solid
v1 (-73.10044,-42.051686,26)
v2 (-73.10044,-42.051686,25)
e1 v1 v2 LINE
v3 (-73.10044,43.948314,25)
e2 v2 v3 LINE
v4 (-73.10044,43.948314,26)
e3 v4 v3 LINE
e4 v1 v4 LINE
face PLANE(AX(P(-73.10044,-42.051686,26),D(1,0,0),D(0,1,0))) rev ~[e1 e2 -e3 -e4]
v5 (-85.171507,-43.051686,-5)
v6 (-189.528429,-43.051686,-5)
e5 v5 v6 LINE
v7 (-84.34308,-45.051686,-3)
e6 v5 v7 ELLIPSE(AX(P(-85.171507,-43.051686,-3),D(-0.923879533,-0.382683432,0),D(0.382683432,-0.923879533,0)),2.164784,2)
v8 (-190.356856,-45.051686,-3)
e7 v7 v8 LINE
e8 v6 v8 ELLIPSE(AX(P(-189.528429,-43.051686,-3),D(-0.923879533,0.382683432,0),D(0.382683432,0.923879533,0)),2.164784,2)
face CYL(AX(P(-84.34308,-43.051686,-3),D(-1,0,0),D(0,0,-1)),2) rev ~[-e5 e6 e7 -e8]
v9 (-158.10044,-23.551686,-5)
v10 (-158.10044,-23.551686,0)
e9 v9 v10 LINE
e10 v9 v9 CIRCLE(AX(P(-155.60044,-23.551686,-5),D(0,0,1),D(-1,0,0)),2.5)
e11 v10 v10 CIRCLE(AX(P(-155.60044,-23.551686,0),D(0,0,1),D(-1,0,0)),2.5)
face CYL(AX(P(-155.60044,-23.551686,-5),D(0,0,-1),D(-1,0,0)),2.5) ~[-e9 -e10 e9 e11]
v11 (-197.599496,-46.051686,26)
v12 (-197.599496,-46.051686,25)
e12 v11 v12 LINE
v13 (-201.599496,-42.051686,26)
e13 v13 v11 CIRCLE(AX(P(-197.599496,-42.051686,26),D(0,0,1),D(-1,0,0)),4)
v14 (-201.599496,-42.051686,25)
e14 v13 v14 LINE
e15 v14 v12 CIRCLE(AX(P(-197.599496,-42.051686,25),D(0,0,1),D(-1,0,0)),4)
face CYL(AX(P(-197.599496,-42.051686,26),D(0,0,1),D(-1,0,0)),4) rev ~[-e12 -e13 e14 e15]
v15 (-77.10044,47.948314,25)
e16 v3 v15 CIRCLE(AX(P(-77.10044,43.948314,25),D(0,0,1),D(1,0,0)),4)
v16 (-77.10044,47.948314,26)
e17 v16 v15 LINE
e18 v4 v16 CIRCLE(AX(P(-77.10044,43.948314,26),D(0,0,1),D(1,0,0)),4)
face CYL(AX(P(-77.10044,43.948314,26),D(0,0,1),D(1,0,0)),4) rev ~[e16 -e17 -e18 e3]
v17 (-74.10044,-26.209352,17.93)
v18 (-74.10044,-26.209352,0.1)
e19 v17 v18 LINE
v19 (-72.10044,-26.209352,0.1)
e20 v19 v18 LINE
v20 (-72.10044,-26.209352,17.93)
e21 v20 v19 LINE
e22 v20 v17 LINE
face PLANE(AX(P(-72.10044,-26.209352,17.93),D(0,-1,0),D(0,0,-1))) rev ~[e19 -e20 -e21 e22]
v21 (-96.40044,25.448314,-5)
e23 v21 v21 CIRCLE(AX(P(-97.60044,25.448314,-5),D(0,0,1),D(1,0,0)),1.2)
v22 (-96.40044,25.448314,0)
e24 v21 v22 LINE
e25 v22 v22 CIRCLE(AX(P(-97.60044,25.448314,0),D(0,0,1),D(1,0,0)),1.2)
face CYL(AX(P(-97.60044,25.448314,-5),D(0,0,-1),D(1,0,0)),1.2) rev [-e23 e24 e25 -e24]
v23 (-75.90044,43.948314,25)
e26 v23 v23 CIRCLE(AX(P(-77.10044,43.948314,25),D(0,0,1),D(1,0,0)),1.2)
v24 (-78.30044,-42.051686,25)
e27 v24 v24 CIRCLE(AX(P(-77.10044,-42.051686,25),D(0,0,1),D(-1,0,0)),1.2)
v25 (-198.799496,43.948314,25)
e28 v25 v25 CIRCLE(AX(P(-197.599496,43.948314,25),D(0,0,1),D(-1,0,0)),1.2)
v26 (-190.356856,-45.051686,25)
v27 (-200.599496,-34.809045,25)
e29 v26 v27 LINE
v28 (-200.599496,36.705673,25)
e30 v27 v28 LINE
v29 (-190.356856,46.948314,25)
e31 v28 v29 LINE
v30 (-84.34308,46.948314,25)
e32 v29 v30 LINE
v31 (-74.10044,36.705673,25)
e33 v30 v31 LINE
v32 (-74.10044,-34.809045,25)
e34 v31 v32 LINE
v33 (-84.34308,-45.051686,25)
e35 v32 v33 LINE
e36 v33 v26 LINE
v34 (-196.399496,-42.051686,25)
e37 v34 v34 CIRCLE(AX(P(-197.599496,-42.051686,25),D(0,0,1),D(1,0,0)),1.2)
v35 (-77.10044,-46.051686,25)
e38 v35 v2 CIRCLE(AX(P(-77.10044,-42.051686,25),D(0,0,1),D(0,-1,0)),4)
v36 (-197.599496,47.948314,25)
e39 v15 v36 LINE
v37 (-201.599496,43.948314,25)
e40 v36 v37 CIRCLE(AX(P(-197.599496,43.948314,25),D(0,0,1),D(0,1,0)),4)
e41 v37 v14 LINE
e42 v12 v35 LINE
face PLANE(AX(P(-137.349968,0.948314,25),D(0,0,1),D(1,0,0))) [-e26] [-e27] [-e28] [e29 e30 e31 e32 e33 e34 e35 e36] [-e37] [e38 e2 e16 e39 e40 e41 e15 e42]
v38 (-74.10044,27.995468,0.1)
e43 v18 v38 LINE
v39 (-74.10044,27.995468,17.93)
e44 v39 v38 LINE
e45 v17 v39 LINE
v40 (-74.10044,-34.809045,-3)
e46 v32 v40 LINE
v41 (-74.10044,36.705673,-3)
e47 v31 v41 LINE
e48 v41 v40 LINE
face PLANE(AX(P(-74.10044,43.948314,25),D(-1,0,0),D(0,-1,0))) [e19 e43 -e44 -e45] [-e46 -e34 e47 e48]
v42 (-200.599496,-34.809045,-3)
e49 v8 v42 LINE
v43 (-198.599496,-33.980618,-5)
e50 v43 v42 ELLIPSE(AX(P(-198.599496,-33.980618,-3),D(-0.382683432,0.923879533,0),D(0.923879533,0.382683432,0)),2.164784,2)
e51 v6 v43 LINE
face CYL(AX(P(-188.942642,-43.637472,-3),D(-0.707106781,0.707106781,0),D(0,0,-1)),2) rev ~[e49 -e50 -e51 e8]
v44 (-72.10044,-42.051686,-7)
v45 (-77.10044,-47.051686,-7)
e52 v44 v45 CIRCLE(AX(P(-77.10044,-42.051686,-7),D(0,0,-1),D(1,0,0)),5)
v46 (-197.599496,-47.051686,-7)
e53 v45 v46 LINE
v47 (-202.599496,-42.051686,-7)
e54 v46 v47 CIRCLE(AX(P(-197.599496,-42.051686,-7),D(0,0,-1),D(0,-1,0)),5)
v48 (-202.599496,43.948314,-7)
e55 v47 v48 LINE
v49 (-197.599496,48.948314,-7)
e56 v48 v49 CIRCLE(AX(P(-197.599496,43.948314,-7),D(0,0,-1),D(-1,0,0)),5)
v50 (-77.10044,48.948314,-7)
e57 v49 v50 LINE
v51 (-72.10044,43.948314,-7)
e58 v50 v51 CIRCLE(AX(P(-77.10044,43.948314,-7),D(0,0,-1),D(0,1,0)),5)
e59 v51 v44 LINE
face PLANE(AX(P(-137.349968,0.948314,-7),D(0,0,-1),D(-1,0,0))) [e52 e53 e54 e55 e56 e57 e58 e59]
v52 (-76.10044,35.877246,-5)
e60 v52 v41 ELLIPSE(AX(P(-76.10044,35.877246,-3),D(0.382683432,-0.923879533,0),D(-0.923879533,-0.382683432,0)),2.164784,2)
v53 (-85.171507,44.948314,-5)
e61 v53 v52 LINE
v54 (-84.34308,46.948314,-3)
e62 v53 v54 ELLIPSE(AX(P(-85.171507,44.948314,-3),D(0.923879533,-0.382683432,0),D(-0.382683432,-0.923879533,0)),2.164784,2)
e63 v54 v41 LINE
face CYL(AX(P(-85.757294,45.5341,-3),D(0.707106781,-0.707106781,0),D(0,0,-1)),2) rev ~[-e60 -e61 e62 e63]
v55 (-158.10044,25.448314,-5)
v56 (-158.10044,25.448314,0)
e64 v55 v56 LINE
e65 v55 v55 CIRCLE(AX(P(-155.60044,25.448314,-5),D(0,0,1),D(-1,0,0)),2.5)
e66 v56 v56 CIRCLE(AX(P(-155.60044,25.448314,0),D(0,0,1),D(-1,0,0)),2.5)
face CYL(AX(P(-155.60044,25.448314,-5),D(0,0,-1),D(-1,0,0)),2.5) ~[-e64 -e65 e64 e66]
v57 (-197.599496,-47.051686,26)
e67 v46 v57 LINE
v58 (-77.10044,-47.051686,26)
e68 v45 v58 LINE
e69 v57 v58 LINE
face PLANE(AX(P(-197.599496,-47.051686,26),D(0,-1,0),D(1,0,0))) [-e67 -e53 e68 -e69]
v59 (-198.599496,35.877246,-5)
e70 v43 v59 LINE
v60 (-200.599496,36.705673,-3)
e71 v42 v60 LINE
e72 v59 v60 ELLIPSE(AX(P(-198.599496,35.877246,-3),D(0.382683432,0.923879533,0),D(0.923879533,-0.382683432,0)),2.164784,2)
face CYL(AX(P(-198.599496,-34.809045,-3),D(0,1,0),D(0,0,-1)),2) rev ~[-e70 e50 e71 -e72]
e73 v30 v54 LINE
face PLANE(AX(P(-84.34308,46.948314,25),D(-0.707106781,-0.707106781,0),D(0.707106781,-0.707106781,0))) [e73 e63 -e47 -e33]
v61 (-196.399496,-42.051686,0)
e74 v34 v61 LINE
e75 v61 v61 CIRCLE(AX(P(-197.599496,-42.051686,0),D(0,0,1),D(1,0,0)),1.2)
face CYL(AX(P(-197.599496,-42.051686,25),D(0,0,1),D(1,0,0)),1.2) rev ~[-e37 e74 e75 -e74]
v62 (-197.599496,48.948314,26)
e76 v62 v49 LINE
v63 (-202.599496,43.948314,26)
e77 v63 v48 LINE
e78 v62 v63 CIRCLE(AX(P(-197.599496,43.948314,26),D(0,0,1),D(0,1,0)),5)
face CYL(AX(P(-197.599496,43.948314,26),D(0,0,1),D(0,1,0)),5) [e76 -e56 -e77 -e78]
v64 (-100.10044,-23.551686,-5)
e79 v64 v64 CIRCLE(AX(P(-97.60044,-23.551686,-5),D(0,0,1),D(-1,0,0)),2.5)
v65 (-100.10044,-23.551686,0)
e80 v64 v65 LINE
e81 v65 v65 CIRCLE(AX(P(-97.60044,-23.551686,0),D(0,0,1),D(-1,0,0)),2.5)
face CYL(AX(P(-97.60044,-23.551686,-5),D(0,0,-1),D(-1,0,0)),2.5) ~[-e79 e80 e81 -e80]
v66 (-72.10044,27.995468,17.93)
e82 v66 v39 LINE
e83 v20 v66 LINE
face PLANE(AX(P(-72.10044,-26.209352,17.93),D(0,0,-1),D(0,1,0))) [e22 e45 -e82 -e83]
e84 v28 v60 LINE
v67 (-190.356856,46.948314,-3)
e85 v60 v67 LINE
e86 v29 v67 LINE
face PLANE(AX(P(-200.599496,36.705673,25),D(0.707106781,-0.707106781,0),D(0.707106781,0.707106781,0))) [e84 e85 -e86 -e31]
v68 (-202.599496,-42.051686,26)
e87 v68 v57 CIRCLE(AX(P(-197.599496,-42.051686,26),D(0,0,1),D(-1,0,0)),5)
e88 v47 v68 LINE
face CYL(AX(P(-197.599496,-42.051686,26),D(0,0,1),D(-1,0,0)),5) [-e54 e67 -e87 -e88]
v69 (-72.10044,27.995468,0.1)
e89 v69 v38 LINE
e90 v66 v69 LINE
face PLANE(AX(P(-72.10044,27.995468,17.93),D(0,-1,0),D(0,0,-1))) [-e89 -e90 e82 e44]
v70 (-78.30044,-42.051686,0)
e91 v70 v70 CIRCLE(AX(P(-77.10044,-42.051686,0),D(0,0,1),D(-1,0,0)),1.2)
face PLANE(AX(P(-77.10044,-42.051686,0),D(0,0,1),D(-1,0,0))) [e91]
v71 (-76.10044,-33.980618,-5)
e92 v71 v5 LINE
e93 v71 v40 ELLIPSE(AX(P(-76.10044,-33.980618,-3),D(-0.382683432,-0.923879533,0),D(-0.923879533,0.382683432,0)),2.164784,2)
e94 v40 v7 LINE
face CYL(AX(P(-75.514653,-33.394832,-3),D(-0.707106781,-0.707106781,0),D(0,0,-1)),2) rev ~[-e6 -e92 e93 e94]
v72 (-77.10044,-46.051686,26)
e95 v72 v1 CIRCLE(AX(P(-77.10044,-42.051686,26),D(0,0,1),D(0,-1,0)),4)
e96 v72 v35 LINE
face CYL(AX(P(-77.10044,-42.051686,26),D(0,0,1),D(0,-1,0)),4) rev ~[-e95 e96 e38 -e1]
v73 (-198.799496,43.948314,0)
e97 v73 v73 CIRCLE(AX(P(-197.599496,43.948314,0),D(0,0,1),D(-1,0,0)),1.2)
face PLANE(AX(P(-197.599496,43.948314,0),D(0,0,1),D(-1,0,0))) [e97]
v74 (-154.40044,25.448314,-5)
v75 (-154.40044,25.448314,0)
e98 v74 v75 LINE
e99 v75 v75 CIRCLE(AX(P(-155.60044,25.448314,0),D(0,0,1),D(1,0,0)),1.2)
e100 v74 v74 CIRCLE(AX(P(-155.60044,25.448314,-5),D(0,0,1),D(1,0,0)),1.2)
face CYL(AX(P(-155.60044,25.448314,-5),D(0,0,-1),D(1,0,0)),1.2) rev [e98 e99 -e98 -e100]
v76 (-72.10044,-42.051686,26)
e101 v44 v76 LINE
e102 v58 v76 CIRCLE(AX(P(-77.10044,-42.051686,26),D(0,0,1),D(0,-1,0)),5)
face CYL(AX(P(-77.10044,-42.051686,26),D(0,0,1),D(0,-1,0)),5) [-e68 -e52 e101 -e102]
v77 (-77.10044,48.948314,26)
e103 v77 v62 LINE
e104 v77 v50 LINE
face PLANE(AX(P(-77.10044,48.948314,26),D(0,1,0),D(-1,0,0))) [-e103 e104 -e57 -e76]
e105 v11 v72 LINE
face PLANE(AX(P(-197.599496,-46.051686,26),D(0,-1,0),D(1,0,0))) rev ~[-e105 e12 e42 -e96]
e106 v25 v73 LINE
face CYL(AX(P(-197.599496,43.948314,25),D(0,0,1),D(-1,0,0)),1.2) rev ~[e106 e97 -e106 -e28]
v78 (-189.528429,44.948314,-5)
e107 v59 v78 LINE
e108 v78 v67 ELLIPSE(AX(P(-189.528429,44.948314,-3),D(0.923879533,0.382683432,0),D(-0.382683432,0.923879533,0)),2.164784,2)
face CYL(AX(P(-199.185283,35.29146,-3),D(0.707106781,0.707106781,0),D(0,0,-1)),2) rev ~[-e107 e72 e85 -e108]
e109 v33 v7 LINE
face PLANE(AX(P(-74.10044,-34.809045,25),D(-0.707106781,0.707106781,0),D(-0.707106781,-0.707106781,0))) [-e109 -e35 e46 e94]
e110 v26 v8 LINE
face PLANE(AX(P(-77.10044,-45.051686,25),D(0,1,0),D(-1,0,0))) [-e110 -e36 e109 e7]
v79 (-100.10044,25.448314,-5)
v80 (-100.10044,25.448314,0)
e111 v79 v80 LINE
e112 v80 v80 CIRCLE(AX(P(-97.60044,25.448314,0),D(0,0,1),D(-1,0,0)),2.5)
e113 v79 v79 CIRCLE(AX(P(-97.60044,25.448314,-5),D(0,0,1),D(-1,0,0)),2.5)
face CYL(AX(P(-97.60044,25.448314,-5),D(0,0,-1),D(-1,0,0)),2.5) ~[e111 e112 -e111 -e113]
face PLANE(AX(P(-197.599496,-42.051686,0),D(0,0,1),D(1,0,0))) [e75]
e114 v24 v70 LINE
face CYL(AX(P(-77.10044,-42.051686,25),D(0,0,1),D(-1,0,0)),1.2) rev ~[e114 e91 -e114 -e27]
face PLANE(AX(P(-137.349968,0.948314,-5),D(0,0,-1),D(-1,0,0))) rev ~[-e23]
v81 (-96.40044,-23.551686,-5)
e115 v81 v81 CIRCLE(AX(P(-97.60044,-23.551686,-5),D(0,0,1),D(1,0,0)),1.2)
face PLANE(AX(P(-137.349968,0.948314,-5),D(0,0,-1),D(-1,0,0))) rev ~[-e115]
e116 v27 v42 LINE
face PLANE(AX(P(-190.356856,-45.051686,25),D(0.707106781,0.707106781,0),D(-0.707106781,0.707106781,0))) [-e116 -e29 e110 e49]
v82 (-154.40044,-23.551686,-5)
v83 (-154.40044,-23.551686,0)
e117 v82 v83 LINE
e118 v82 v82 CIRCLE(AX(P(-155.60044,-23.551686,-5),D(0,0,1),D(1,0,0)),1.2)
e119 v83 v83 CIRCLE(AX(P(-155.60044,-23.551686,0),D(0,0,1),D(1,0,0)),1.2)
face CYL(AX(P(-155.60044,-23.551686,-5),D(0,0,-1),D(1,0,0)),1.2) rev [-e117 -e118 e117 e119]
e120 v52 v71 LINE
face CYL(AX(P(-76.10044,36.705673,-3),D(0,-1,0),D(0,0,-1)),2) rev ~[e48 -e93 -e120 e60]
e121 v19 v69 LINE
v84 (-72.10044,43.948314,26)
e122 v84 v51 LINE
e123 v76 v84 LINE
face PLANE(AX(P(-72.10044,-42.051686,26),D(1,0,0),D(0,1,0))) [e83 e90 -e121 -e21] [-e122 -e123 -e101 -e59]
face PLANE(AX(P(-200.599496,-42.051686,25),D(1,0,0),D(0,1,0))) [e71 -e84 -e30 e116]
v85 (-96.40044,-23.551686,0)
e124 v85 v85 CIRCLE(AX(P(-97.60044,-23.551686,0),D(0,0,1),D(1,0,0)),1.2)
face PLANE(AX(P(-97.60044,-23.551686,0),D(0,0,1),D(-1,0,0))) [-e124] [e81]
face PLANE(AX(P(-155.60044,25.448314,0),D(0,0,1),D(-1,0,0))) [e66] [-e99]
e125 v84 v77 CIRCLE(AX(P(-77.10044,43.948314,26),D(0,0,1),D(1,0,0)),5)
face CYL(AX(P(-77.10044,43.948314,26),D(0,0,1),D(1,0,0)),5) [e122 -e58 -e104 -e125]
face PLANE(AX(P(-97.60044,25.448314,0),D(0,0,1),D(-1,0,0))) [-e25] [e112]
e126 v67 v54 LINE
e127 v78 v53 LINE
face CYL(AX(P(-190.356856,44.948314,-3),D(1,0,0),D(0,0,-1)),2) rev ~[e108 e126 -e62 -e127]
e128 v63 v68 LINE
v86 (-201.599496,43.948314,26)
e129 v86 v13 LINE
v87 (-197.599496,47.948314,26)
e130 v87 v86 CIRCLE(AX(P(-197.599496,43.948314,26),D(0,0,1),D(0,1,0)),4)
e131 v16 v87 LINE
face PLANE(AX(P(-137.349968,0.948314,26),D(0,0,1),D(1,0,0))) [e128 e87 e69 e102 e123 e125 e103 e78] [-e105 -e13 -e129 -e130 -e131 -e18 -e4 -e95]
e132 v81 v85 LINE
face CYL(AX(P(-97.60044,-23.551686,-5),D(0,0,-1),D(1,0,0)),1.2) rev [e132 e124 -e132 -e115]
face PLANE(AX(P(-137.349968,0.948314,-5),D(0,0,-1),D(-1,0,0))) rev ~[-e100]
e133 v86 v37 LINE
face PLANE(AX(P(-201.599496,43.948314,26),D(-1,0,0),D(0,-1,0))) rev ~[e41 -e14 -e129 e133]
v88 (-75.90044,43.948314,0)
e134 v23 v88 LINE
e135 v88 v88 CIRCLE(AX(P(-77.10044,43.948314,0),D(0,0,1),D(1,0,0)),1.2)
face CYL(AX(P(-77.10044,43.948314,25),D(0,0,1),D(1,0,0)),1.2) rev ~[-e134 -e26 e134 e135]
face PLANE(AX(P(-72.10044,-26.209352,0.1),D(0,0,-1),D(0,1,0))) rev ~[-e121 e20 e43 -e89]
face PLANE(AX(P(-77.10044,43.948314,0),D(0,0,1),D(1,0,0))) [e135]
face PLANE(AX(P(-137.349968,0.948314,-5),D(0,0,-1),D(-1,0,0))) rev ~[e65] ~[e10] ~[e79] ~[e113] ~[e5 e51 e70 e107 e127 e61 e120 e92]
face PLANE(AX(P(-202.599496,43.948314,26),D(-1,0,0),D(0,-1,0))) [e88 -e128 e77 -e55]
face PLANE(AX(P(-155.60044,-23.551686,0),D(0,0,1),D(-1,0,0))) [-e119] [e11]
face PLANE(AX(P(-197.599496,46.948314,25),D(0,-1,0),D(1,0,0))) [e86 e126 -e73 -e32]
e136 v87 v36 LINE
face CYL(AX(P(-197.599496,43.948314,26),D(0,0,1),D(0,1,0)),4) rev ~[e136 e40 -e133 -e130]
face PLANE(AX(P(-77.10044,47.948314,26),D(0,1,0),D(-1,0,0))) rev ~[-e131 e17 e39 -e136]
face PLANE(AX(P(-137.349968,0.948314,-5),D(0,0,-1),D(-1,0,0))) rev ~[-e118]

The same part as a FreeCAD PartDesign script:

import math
import FreeCAD as App
import Part
import Sketcher
from FreeCAD import Vector
Q = App.Units.Quantity


def edges_at(feature, points):
    """Names of the edges that pass closest to the given points."""
    edges = feature.Shape.Edges
    near = lambda p: min(range(len(edges)), key=lambda i: edges[i].distToShape(Part.Vertex(*p))[0])
    return sorted({f"Edge{near(p) + 1}" for p in points})

doc = App.newDocument("Part")
params = doc.addObject("Spreadsheet::Sheet", "Params")
for row, (alias, value) in enumerate([
    ("sketch1_radius", "5 mm"),
    ("sketch1_height", "86 mm"),
    ("pad1_length", "2 mm"),
    ("sketch2_radius", "5 mm"),
    ("sketch2_height", "86 mm"),
    ("pad2_length", "30 mm"),
    ("sketch3_diameter", "2.4 mm"),
    ("pocket1_length", "25 mm"),
    ("sketch4_radius", "5 mm"),
    ("sketch4_radius2", "4 mm"),
    ("sketch4_height", "86 mm"),
    ("pad3_length", "1 mm"),
    ("sketch5_height", "17.83 mm"),
    ("pocket2_length", "2 mm"),
    ("sketch6_diameter", "5 mm"),
    ("sketch6_diameter2", "2.4 mm"),
    ("pad4_length", "5 mm"),
    ("fillet_radius", "2 mm"),
], start=1):
    params.set(f"A{row}", alias)
    params.set(f"B{row}", "=" + value)
    params.setAlias(f"B{row}", alias)

body = doc.addObject("PartDesign::Body", "Body")

# Sketch on XY plane
sketch1 = body.newObject("Sketcher::SketchObject", "Sketch")
sketch1.AttachmentSupport = (doc.getObject("XY_Plane"), [""])
sketch1.MapMode = "FlatFace"
sketch1.AttachmentOffset = App.Placement(Vector(0, 0, -5), App.Rotation())
sketch1.addGeometry(Part.LineSegment(Vector(-77, -47, 0), Vector(-198, -47, 0)), False)
sketch1.addGeometry(Part.ArcOfCircle(Part.Circle(Vector(-198, -42, 0), Vector(0, 0, 1), 5), math.radians(180), math.radians(270)), False)
sketch1.addGeometry(Part.LineSegment(Vector(-203, -42, 0), Vector(-203, 44, 0)), False)
sketch1.addGeometry(Part.ArcOfCircle(Part.Circle(Vector(-198, 44, 0), Vector(0, 0, 1), 5), math.radians(90), math.radians(180)), False)
sketch1.addGeometry(Part.LineSegment(Vector(-198, 49, 0), Vector(-77, 49, 0)), False)
sketch1.addGeometry(Part.ArcOfCircle(Part.Circle(Vector(-77, 44, 0), Vector(0, 0, 1), 5), math.radians(0), math.radians(90)), False)
sketch1.addGeometry(Part.LineSegment(Vector(-72, 44, 0), Vector(-72, -42, 0)), False)
sketch1.addGeometry(Part.ArcOfCircle(Part.Circle(Vector(-77, -42, 0), Vector(0, 0, 1), 5), math.radians(-90), math.radians(0)), False)
sketch1.addConstraint(Sketcher.Constraint("Tangent", 0, 2, 1, 2))
sketch1.addConstraint(Sketcher.Constraint("Tangent", 1, 1, 2, 1))
sketch1.addConstraint(Sketcher.Constraint("Tangent", 2, 2, 3, 2))
sketch1.addConstraint(Sketcher.Constraint("Tangent", 3, 1, 4, 1))
sketch1.addConstraint(Sketcher.Constraint("Tangent", 4, 2, 5, 2))
sketch1.addConstraint(Sketcher.Constraint("Tangent", 5, 1, 6, 1))
sketch1.addConstraint(Sketcher.Constraint("Tangent", 6, 2, 7, 2))
sketch1.addConstraint(Sketcher.Constraint("Tangent", 7, 1, 0, 1))
sketch1.addConstraint(Sketcher.Constraint("Horizontal", 0))
sketch1.addConstraint(Sketcher.Constraint("Vertical", 2))
sketch1.addConstraint(Sketcher.Constraint("Horizontal", 4))
sketch1.addConstraint(Sketcher.Constraint("Vertical", 6))
sketch1.addConstraint(Sketcher.Constraint("Equal", 1, 3))
sketch1.addConstraint(Sketcher.Constraint("Equal", 3, 5))
sketch1.addConstraint(Sketcher.Constraint("Equal", 5, 7))
sketch1.addConstraint(Sketcher.Constraint("Radius", 1, Q("5 mm")))
sketch1.addConstraint(Sketcher.Constraint("DistanceY", 2, 1, 2, 2, Q("86 mm")))
sketch1.addConstraint(Sketcher.Constraint("DistanceX", 0, 2, 0, 1, Q("120.499057 mm")))
sketch1.addConstraint(Sketcher.Constraint("DistanceX", 5, 3, -1, 1, Q("77.10044 mm")))
sketch1.addConstraint(Sketcher.Constraint("DistanceY", 1, 3, -1, 1, Q("42.051686 mm")))
sketch1.setExpression("Constraints[15]", "Params.sketch1_radius")
sketch1.setExpression("Constraints[16]", "Params.sketch1_height")
pad1 = body.newObject("PartDesign::Pad", "Pad")
pad1.Profile = sketch1
pad1.setExpression("Length", "Params.pad1_length")
pad1.Reversed = True

# Sketch on XY plane
sketch2 = body.newObject("Sketcher::SketchObject", "Sketch001")
sketch2.AttachmentSupport = (doc.getObject("XY_Plane"), [""])
sketch2.MapMode = "FlatFace"
sketch2.AttachmentOffset = App.Placement(Vector(0, 0, 25), App.Rotation())
sketch2.addGeometry(Part.ArcOfCircle(Part.Circle(Vector(-198, -42, 0), Vector(0, 0, 1), 5), math.radians(180), math.radians(270)), False)
sketch2.addGeometry(Part.LineSegment(Vector(-198, -47, 0), Vector(-77, -47, 0)), False)
sketch2.addGeometry(Part.ArcOfCircle(Part.Circle(Vector(-77, -42, 0), Vector(0, 0, 1), 5), math.radians(-90), math.radians(0)), False)
sketch2.addGeometry(Part.LineSegment(Vector(-72, -42, 0), Vector(-72, 44, 0)), False)
sketch2.addGeometry(Part.ArcOfCircle(Part.Circle(Vector(-77, 44, 0), Vector(0, 0, 1), 5), math.radians(0), math.radians(90)), False)
sketch2.addGeometry(Part.LineSegment(Vector(-77, 49, 0), Vector(-198, 49, 0)), False)
sketch2.addGeometry(Part.ArcOfCircle(Part.Circle(Vector(-198, 44, 0), Vector(0, 0, 1), 5), math.radians(90), math.radians(180)), False)
sketch2.addGeometry(Part.LineSegment(Vector(-203, 44, 0), Vector(-203, -42, 0)), False)
sketch2.addGeometry(Part.LineSegment(Vector(-74, 37, 0), Vector(-74, -35, 0)), False)
sketch2.addGeometry(Part.LineSegment(Vector(-74, -35, 0), Vector(-84, -45, 0)), False)
sketch2.addGeometry(Part.LineSegment(Vector(-84, -45, 0), Vector(-190, -45, 0)), False)
sketch2.addGeometry(Part.LineSegment(Vector(-190, -45, 0), Vector(-201, -35, 0)), False)
sketch2.addGeometry(Part.LineSegment(Vector(-201, -35, 0), Vector(-201, 37, 0)), False)
sketch2.addGeometry(Part.LineSegment(Vector(-201, 37, 0), Vector(-190, 47, 0)), False)
sketch2.addGeometry(Part.LineSegment(Vector(-190, 47, 0), Vector(-84, 47, 0)), False)
sketch2.addGeometry(Part.LineSegment(Vector(-84, 47, 0), Vector(-74, 37, 0)), False)
sketch2.addConstraint(Sketcher.Constraint("Tangent", 0, 2, 1, 1))
sketch2.addConstraint(Sketcher.Constraint("Tangent", 1, 2, 2, 1))
sketch2.addConstraint(Sketcher.Constraint("Tangent", 2, 2, 3, 1))
sketch2.addConstraint(Sketcher.Constraint("Tangent", 3, 2, 4, 1))
sketch2.addConstraint(Sketcher.Constraint("Tangent", 4, 2, 5, 1))
sketch2.addConstraint(Sketcher.Constraint("Tangent", 5, 2, 6, 1))
sketch2.addConstraint(Sketcher.Constraint("Tangent", 6, 2, 7, 1))
sketch2.addConstraint(Sketcher.Constraint("Tangent", 7, 2, 0, 1))
sketch2.addConstraint(Sketcher.Constraint("Coincident", 8, 2, 9, 1))
sketch2.addConstraint(Sketcher.Constraint("Coincident", 9, 2, 10, 1))
sketch2.addConstraint(Sketcher.Constraint("Coincident", 10, 2, 11, 1))
sketch2.addConstraint(Sketcher.Constraint("Coincident", 11, 2, 12, 1))
sketch2.addConstraint(Sketcher.Constraint("Coincident", 12, 2, 13, 1))
sketch2.addConstraint(Sketcher.Constraint("Coincident", 13, 2, 14, 1))
sketch2.addConstraint(Sketcher.Constraint("Coincident", 14, 2, 15, 1))
sketch2.addConstraint(Sketcher.Constraint("Coincident", 15, 2, 8, 1))
sketch2.addConstraint(Sketcher.Constraint("Horizontal", 1))
sketch2.addConstraint(Sketcher.Constraint("Vertical", 3))
sketch2.addConstraint(Sketcher.Constraint("Horizontal", 5))
sketch2.addConstraint(Sketcher.Constraint("Vertical", 7))
sketch2.addConstraint(Sketcher.Constraint("Vertical", 8))
sketch2.addConstraint(Sketcher.Constraint("Horizontal", 10))
sketch2.addConstraint(Sketcher.Constraint("Vertical", 12))
sketch2.addConstraint(Sketcher.Constraint("Horizontal", 14))
sketch2.addConstraint(Sketcher.Constraint("Equal", 0, 2))
sketch2.addConstraint(Sketcher.Constraint("Equal", 2, 4))
sketch2.addConstraint(Sketcher.Constraint("Equal", 4, 6))
sketch2.addConstraint(Sketcher.Constraint("Perpendicular", 9, 11))
sketch2.addConstraint(Sketcher.Constraint("Perpendicular", 11, 13))
sketch2.addConstraint(Sketcher.Constraint("Perpendicular", 13, 15))
sketch2.addConstraint(Sketcher.Constraint("Horizontal", 8, 2, 11, 2))
sketch2.addConstraint(Sketcher.Constraint("Horizontal", 12, 2, 15, 2))
sketch2.addConstraint(Sketcher.Constraint("Vertical", 10, 2, 13, 2))
sketch2.addConstraint(Sketcher.Constraint("Vertical", 9, 2, 14, 2))
sketch2.addConstraint(Sketcher.Constraint("Radius", 0, Q("5 mm")))
sketch2.addConstraint(Sketcher.Constraint("DistanceY", 3, 1, 3, 2, Q("86 mm")))
sketch2.addConstraint(Sketcher.Constraint("DistanceX", 8, 2, 2, 2, Q("2 mm")))
sketch2.addConstraint(Sketcher.Constraint("DistanceY", 1, 2, 9, 2, Q("2 mm")))
sketch2.addConstraint(Sketcher.Constraint("DistanceX", 7, 2, 11, 2, Q("2 mm")))
sketch2.addConstraint(Sketcher.Constraint("DistanceY", 13, 2, 5, 2, Q("2 mm")))
sketch2.addConstraint(Sketcher.Constraint("DistanceY", 8, 2, 8, 1, Q("71.514719 mm")))
sketch2.addConstraint(Sketcher.Constraint("DistanceX", 1, 1, 1, 2, Q("120.499057 mm")))
sketch2.addConstraint(Sketcher.Constraint("DistanceX", 2, 3, -1, 1, Q("77.10044 mm")))
sketch2.addConstraint(Sketcher.Constraint("DistanceY", 0, 3, -1, 1, Q("42.051686 mm")))
sketch2.setExpression("Constraints[34]", "Params.sketch2_radius")
sketch2.setExpression("Constraints[35]", "Params.sketch2_height")
pad2 = body.newObject("PartDesign::Pad", "Pad001")
pad2.Profile = sketch2
pad2.setExpression("Length", "Params.pad2_length")
pad2.Reversed = True

# Sketch on XY plane
sketch3 = body.newObject("Sketcher::SketchObject", "Sketch002")
sketch3.AttachmentSupport = (doc.getObject("XY_Plane"), [""])
sketch3.MapMode = "FlatFace"
sketch3.AttachmentOffset = App.Placement(Vector(0, 0, 25), App.Rotation())
sketch3.addGeometry(Part.Circle(Vector(-197.6, -42.1, 0), Vector(0, 0, 1), 1.2), False)
sketch3.addGeometry(Part.Circle(Vector(-77.1, -42.1, 0), Vector(0, 0, 1), 1.2), False)
sketch3.addGeometry(Part.Circle(Vector(-197.6, 43.9, 0), Vector(0, 0, 1), 1.2), False)
sketch3.addGeometry(Part.Circle(Vector(-77.1, 43.9, 0), Vector(0, 0, 1), 1.2), False)
sketch3.addConstraint(Sketcher.Constraint("Equal", 0, 1))
sketch3.addConstraint(Sketcher.Constraint("Equal", 1, 2))
sketch3.addConstraint(Sketcher.Constraint("Equal", 2, 3))
sketch3.addConstraint(Sketcher.Constraint("Horizontal", 0, 3, 1, 3))
sketch3.addConstraint(Sketcher.Constraint("Horizontal", 2, 3, 3, 3))
sketch3.addConstraint(Sketcher.Constraint("Vertical", 0, 3, 2, 3))
sketch3.addConstraint(Sketcher.Constraint("Vertical", 1, 3, 3, 3))
sketch3.addConstraint(Sketcher.Constraint("Diameter", 0, Q("2.4 mm")))
sketch3.addConstraint(Sketcher.Constraint("DistanceY", 0, 3, 2, 3, Q("86 mm")))
sketch3.addConstraint(Sketcher.Constraint("DistanceX", 1, 3, -1, 1, Q("77.10044 mm")))
sketch3.addConstraint(Sketcher.Constraint("DistanceX", 0, 3, -1, 1, Q("197.599496 mm")))
sketch3.addConstraint(Sketcher.Constraint("DistanceY", 0, 3, -1, 1, Q("42.051686 mm")))
sketch3.setExpression("Constraints[7]", "Params.sketch3_diameter")
pocket1 = body.newObject("PartDesign::Pocket", "Pocket")
pocket1.Profile = sketch3
pocket1.setExpression("Length", "Params.pocket1_length")

# Sketch on XY plane
sketch4 = body.newObject("Sketcher::SketchObject", "Sketch003")
sketch4.AttachmentSupport = (doc.getObject("XY_Plane"), [""])
sketch4.MapMode = "FlatFace"
sketch4.AttachmentOffset = App.Placement(Vector(0, 0, 26), App.Rotation())
sketch4.addGeometry(Part.LineSegment(Vector(-202.6, 43.9, 0), Vector(-202.6, -42.1, 0)), False)
sketch4.addGeometry(Part.ArcOfCircle(Part.Circle(Vector(-197.6, -42.1, 0), Vector(0, 0, 1), 5), math.radians(180), math.radians(270)), False)
sketch4.addGeometry(Part.LineSegment(Vector(-197.6, -47.1, 0), Vector(-77.1, -47.1, 0)), False)
sketch4.addGeometry(Part.ArcOfCircle(Part.Circle(Vector(-77.1, -42.1, 0), Vector(0, 0, 1), 5), math.radians(-90), math.radians(0)), False)
sketch4.addGeometry(Part.LineSegment(Vector(-72.1, -42.1, 0), Vector(-72.1, 43.9, 0)), False)
sketch4.addGeometry(Part.ArcOfCircle(Part.Circle(Vector(-77.1, 43.9, 0), Vector(0, 0, 1), 5), math.radians(0), math.radians(90)), False)
sketch4.addGeometry(Part.LineSegment(Vector(-77.1, 48.9, 0), Vector(-197.6, 48.9, 0)), False)
sketch4.addGeometry(Part.ArcOfCircle(Part.Circle(Vector(-197.6, 43.9, 0), Vector(0, 0, 1), 5), math.radians(90), math.radians(180)), False)
sketch4.addGeometry(Part.LineSegment(Vector(-201.6, -42.1, 0), Vector(-201.6, 43.9, 0)), False)
sketch4.addGeometry(Part.ArcOfCircle(Part.Circle(Vector(-197.6, 43.9, 0), Vector(0, 0, 1), 4), math.radians(90), math.radians(180)), False)
sketch4.addGeometry(Part.LineSegment(Vector(-197.6, 47.9, 0), Vector(-77.1, 47.9, 0)), False)
sketch4.addGeometry(Part.ArcOfCircle(Part.Circle(Vector(-77.1, 43.9, 0), Vector(0, 0, 1), 4), math.radians(0), math.radians(90)), False)
sketch4.addGeometry(Part.LineSegment(Vector(-73.1, 43.9, 0), Vector(-73.1, -42.1, 0)), False)
sketch4.addGeometry(Part.ArcOfCircle(Part.Circle(Vector(-77.1, -42.1, 0), Vector(0, 0, 1), 4), math.radians(-90), math.radians(0)), False)
sketch4.addGeometry(Part.LineSegment(Vector(-77.1, -46.1, 0), Vector(-197.6, -46.1, 0)), False)
sketch4.addGeometry(Part.ArcOfCircle(Part.Circle(Vector(-197.6, -42.1, 0), Vector(0, 0, 1), 4), math.radians(180), math.radians(270)), False)
sketch4.addConstraint(Sketcher.Constraint("Tangent", 0, 2, 1, 1))
sketch4.addConstraint(Sketcher.Constraint("Tangent", 1, 2, 2, 1))
sketch4.addConstraint(Sketcher.Constraint("Tangent", 2, 2, 3, 1))
sketch4.addConstraint(Sketcher.Constraint("Tangent", 3, 2, 4, 1))
sketch4.addConstraint(Sketcher.Constraint("Tangent", 4, 2, 5, 1))
sketch4.addConstraint(Sketcher.Constraint("Tangent", 5, 2, 6, 1))
sketch4.addConstraint(Sketcher.Constraint("Tangent", 6, 2, 7, 1))
sketch4.addConstraint(Sketcher.Constraint("Tangent", 7, 2, 0, 1))
sketch4.addConstraint(Sketcher.Constraint("Tangent", 8, 2, 9, 2))
sketch4.addConstraint(Sketcher.Constraint("Tangent", 9, 1, 10, 1))
sketch4.addConstraint(Sketcher.Constraint("Tangent", 10, 2, 11, 2))
sketch4.addConstraint(Sketcher.Constraint("Tangent", 11, 1, 12, 1))
sketch4.addConstraint(Sketcher.Constraint("Tangent", 12, 2, 13, 2))
sketch4.addConstraint(Sketcher.Constraint("Tangent", 13, 1, 14, 1))
sketch4.addConstraint(Sketcher.Constraint("Tangent", 14, 2, 15, 2))
sketch4.addConstraint(Sketcher.Constraint("Tangent", 15, 1, 8, 1))
sketch4.addConstraint(Sketcher.Constraint("Vertical", 0))
sketch4.addConstraint(Sketcher.Constraint("Horizontal", 2))
sketch4.addConstraint(Sketcher.Constraint("Vertical", 4))
sketch4.addConstraint(Sketcher.Constraint("Horizontal", 6))
sketch4.addConstraint(Sketcher.Constraint("Vertical", 8))
sketch4.addConstraint(Sketcher.Constraint("Horizontal", 10))
sketch4.addConstraint(Sketcher.Constraint("Vertical", 12))
sketch4.addConstraint(Sketcher.Constraint("Horizontal", 14))
sketch4.addConstraint(Sketcher.Constraint("Coincident", 9, 3, 7, 3))
sketch4.addConstraint(Sketcher.Constraint("Coincident", 11, 3, 5, 3))
sketch4.addConstraint(Sketcher.Constraint("Coincident", 13, 3, 3, 3))
sketch4.addConstraint(Sketcher.Constraint("Equal", 1, 3))
sketch4.addConstraint(Sketcher.Constraint("Equal", 3, 5))
sketch4.addConstraint(Sketcher.Constraint("Equal", 5, 7))
sketch4.addConstraint(Sketcher.Constraint("Equal", 13, 15))
sketch4.addConstraint(Sketcher.Constraint("Radius", 1, Q("5 mm")))
sketch4.addConstraint(Sketcher.Constraint("Radius", 9, Q("4 mm")))
sketch4.addConstraint(Sketcher.Constraint("DistanceY", 0, 2, 0, 1, Q("86 mm")))
sketch4.addConstraint(Sketcher.Constraint("DistanceX", 2, 1, 2, 2, Q("120.499057 mm")))
sketch4.addConstraint(Sketcher.Constraint("DistanceX", 3, 3, -1, 1, Q("77.10044 mm")))
sketch4.addConstraint(Sketcher.Constraint("DistanceY", 1, 3, -1, 1, Q("42.051686 mm")))
sketch4.setExpression("Constraints[31]", "Params.sketch4_radius")
sketch4.setExpression("Constraints[32]", "Params.sketch4_radius2")
sketch4.setExpression("Constraints[33]", "Params.sketch4_height")
pad3 = body.newObject("PartDesign::Pad", "Pad002")
pad3.Profile = sketch4
pad3.setExpression("Length", "Params.pad3_length")
pad3.Reversed = True

# Sketch on YZ plane
sketch5 = body.newObject("Sketcher::SketchObject", "Sketch004")
sketch5.AttachmentSupport = (doc.getObject("YZ_Plane"), [""])
sketch5.MapMode = "FlatFace"
sketch5.AttachmentOffset = App.Placement(Vector(0, 0, -72.10044), App.Rotation())
sketch5.addGeometry(Part.LineSegment(Vector(28, 18, 0), Vector(-26, 18, 0)), False)
sketch5.addGeometry(Part.LineSegment(Vector(-26, 18, 0), Vector(-26, 0, 0)), False)
sketch5.addGeometry(Part.LineSegment(Vector(-26, 0, 0), Vector(28, 0, 0)), False)
sketch5.addGeometry(Part.LineSegment(Vector(28, 0, 0), Vector(28, 18, 0)), False)
sketch5.addConstraint(Sketcher.Constraint("Coincident", 0, 2, 1, 1))
sketch5.addConstraint(Sketcher.Constraint("Coincident", 1, 2, 2, 1))
sketch5.addConstraint(Sketcher.Constraint("Coincident", 2, 2, 3, 1))
sketch5.addConstraint(Sketcher.Constraint("Coincident", 3, 2, 0, 1))
sketch5.addConstraint(Sketcher.Constraint("Horizontal", 0))
sketch5.addConstraint(Sketcher.Constraint("Vertical", 1))
sketch5.addConstraint(Sketcher.Constraint("Horizontal", 2))
sketch5.addConstraint(Sketcher.Constraint("Vertical", 3))
sketch5.addConstraint(Sketcher.Constraint("DistanceY", 1, 2, 1, 1, Q("17.83 mm")))
sketch5.addConstraint(Sketcher.Constraint("DistanceY", -1, 1, 1, 2, Q("0.1 mm")))
sketch5.addConstraint(Sketcher.Constraint("DistanceX", 0, 2, 0, 1, Q("54.204821 mm")))
sketch5.addConstraint(Sketcher.Constraint("DistanceX", -1, 1, 2, 2, Q("27.995468 mm")))
sketch5.setExpression("Constraints[8]", "Params.sketch5_height")
pocket2 = body.newObject("PartDesign::Pocket", "Pocket001")
pocket2.Profile = sketch5
pocket2.setExpression("Length", "Params.pocket2_length")

# Sketch on XY plane
sketch6 = body.newObject("Sketcher::SketchObject", "Sketch005")
sketch6.AttachmentSupport = (doc.getObject("XY_Plane"), [""])
sketch6.MapMode = "FlatFace"
sketch6.AttachmentOffset = App.Placement(Vector(0, 0, -5), App.Rotation())
sketch6.addGeometry(Part.Circle(Vector(-155.6, -23.6, 0), Vector(0, 0, 1), 2.5), False)
sketch6.addGeometry(Part.Circle(Vector(-155.6, -23.6, 0), Vector(0, 0, 1), 1.2), False)
sketch6.addGeometry(Part.Circle(Vector(-155.6, 25.4, 0), Vector(0, 0, 1), 2.5), False)
sketch6.addGeometry(Part.Circle(Vector(-155.6, 25.4, 0), Vector(0, 0, 1), 1.2), False)
sketch6.addGeometry(Part.Circle(Vector(-97.6, 25.4, 0), Vector(0, 0, 1), 2.5), False)
sketch6.addGeometry(Part.Circle(Vector(-97.6, 25.4, 0), Vector(0, 0, 1), 1.2), False)
sketch6.addGeometry(Part.Circle(Vector(-97.6, -23.6, 0), Vector(0, 0, 1), 2.5), False)
sketch6.addGeometry(Part.Circle(Vector(-97.6, -23.6, 0), Vector(0, 0, 1), 1.2), False)
sketch6.addConstraint(Sketcher.Constraint("Coincident", 1, 3, 0, 3))
sketch6.addConstraint(Sketcher.Constraint("Coincident", 3, 3, 2, 3))
sketch6.addConstraint(Sketcher.Constraint("Coincident", 5, 3, 4, 3))
sketch6.addConstraint(Sketcher.Constraint("Coincident", 7, 3, 6, 3))
sketch6.addConstraint(Sketcher.Constraint("Equal", 0, 2))
sketch6.addConstraint(Sketcher.Constraint("Equal", 1, 3))
sketch6.addConstraint(Sketcher.Constraint("Equal", 2, 4))
sketch6.addConstraint(Sketcher.Constraint("Equal", 3, 5))
sketch6.addConstraint(Sketcher.Constraint("Equal", 4, 6))
sketch6.addConstraint(Sketcher.Constraint("Equal", 5, 7))
sketch6.addConstraint(Sketcher.Constraint("Horizontal", 3, 3, 4, 3))
sketch6.addConstraint(Sketcher.Constraint("Horizontal", 1, 3, 6, 3))
sketch6.addConstraint(Sketcher.Constraint("Vertical", 1, 3, 2, 3))
sketch6.addConstraint(Sketcher.Constraint("Vertical", 5, 3, 6, 3))
sketch6.addConstraint(Sketcher.Constraint("Diameter", 0, Q("5 mm")))
sketch6.addConstraint(Sketcher.Constraint("Diameter", 1, Q("2.4 mm")))
sketch6.addConstraint(Sketcher.Constraint("DistanceY", 0, 3, 2, 3, Q("49 mm")))
sketch6.addConstraint(Sketcher.Constraint("DistanceX", 2, 3, 4, 3, Q("58 mm")))
sketch6.addConstraint(Sketcher.Constraint("DistanceX", 0, 3, -1, 1, Q("155.60044 mm")))
sketch6.addConstraint(Sketcher.Constraint("DistanceY", 0, 3, -1, 1, Q("23.551686 mm")))
sketch6.setExpression("Constraints[14]", "Params.sketch6_diameter")
sketch6.setExpression("Constraints[15]", "Params.sketch6_diameter2")
pad4 = body.newObject("PartDesign::Pad", "Pad003")
pad4.Profile = sketch6
pad4.setExpression("Length", "Params.pad4_length")
doc.recompute()

fillet = body.newObject("PartDesign::Fillet", "Fillet")
fillet.Base = (pad4, edges_at(pad4, [
    (-79.222, -39.93, -5),
    (-195.478, 41.827, -5),
    (-74.1, 0.948, -5),
    (-79.222, 41.827, -5),
    (-137.35, 46.948, -5),
    (-200.599, 0.948, -5),
    (-195.478, -39.93, -5),
    (-137.35, -45.052, -5),
]))
fillet.setExpression("Radius", "Params.fillet_radius")

doc.recompute()
